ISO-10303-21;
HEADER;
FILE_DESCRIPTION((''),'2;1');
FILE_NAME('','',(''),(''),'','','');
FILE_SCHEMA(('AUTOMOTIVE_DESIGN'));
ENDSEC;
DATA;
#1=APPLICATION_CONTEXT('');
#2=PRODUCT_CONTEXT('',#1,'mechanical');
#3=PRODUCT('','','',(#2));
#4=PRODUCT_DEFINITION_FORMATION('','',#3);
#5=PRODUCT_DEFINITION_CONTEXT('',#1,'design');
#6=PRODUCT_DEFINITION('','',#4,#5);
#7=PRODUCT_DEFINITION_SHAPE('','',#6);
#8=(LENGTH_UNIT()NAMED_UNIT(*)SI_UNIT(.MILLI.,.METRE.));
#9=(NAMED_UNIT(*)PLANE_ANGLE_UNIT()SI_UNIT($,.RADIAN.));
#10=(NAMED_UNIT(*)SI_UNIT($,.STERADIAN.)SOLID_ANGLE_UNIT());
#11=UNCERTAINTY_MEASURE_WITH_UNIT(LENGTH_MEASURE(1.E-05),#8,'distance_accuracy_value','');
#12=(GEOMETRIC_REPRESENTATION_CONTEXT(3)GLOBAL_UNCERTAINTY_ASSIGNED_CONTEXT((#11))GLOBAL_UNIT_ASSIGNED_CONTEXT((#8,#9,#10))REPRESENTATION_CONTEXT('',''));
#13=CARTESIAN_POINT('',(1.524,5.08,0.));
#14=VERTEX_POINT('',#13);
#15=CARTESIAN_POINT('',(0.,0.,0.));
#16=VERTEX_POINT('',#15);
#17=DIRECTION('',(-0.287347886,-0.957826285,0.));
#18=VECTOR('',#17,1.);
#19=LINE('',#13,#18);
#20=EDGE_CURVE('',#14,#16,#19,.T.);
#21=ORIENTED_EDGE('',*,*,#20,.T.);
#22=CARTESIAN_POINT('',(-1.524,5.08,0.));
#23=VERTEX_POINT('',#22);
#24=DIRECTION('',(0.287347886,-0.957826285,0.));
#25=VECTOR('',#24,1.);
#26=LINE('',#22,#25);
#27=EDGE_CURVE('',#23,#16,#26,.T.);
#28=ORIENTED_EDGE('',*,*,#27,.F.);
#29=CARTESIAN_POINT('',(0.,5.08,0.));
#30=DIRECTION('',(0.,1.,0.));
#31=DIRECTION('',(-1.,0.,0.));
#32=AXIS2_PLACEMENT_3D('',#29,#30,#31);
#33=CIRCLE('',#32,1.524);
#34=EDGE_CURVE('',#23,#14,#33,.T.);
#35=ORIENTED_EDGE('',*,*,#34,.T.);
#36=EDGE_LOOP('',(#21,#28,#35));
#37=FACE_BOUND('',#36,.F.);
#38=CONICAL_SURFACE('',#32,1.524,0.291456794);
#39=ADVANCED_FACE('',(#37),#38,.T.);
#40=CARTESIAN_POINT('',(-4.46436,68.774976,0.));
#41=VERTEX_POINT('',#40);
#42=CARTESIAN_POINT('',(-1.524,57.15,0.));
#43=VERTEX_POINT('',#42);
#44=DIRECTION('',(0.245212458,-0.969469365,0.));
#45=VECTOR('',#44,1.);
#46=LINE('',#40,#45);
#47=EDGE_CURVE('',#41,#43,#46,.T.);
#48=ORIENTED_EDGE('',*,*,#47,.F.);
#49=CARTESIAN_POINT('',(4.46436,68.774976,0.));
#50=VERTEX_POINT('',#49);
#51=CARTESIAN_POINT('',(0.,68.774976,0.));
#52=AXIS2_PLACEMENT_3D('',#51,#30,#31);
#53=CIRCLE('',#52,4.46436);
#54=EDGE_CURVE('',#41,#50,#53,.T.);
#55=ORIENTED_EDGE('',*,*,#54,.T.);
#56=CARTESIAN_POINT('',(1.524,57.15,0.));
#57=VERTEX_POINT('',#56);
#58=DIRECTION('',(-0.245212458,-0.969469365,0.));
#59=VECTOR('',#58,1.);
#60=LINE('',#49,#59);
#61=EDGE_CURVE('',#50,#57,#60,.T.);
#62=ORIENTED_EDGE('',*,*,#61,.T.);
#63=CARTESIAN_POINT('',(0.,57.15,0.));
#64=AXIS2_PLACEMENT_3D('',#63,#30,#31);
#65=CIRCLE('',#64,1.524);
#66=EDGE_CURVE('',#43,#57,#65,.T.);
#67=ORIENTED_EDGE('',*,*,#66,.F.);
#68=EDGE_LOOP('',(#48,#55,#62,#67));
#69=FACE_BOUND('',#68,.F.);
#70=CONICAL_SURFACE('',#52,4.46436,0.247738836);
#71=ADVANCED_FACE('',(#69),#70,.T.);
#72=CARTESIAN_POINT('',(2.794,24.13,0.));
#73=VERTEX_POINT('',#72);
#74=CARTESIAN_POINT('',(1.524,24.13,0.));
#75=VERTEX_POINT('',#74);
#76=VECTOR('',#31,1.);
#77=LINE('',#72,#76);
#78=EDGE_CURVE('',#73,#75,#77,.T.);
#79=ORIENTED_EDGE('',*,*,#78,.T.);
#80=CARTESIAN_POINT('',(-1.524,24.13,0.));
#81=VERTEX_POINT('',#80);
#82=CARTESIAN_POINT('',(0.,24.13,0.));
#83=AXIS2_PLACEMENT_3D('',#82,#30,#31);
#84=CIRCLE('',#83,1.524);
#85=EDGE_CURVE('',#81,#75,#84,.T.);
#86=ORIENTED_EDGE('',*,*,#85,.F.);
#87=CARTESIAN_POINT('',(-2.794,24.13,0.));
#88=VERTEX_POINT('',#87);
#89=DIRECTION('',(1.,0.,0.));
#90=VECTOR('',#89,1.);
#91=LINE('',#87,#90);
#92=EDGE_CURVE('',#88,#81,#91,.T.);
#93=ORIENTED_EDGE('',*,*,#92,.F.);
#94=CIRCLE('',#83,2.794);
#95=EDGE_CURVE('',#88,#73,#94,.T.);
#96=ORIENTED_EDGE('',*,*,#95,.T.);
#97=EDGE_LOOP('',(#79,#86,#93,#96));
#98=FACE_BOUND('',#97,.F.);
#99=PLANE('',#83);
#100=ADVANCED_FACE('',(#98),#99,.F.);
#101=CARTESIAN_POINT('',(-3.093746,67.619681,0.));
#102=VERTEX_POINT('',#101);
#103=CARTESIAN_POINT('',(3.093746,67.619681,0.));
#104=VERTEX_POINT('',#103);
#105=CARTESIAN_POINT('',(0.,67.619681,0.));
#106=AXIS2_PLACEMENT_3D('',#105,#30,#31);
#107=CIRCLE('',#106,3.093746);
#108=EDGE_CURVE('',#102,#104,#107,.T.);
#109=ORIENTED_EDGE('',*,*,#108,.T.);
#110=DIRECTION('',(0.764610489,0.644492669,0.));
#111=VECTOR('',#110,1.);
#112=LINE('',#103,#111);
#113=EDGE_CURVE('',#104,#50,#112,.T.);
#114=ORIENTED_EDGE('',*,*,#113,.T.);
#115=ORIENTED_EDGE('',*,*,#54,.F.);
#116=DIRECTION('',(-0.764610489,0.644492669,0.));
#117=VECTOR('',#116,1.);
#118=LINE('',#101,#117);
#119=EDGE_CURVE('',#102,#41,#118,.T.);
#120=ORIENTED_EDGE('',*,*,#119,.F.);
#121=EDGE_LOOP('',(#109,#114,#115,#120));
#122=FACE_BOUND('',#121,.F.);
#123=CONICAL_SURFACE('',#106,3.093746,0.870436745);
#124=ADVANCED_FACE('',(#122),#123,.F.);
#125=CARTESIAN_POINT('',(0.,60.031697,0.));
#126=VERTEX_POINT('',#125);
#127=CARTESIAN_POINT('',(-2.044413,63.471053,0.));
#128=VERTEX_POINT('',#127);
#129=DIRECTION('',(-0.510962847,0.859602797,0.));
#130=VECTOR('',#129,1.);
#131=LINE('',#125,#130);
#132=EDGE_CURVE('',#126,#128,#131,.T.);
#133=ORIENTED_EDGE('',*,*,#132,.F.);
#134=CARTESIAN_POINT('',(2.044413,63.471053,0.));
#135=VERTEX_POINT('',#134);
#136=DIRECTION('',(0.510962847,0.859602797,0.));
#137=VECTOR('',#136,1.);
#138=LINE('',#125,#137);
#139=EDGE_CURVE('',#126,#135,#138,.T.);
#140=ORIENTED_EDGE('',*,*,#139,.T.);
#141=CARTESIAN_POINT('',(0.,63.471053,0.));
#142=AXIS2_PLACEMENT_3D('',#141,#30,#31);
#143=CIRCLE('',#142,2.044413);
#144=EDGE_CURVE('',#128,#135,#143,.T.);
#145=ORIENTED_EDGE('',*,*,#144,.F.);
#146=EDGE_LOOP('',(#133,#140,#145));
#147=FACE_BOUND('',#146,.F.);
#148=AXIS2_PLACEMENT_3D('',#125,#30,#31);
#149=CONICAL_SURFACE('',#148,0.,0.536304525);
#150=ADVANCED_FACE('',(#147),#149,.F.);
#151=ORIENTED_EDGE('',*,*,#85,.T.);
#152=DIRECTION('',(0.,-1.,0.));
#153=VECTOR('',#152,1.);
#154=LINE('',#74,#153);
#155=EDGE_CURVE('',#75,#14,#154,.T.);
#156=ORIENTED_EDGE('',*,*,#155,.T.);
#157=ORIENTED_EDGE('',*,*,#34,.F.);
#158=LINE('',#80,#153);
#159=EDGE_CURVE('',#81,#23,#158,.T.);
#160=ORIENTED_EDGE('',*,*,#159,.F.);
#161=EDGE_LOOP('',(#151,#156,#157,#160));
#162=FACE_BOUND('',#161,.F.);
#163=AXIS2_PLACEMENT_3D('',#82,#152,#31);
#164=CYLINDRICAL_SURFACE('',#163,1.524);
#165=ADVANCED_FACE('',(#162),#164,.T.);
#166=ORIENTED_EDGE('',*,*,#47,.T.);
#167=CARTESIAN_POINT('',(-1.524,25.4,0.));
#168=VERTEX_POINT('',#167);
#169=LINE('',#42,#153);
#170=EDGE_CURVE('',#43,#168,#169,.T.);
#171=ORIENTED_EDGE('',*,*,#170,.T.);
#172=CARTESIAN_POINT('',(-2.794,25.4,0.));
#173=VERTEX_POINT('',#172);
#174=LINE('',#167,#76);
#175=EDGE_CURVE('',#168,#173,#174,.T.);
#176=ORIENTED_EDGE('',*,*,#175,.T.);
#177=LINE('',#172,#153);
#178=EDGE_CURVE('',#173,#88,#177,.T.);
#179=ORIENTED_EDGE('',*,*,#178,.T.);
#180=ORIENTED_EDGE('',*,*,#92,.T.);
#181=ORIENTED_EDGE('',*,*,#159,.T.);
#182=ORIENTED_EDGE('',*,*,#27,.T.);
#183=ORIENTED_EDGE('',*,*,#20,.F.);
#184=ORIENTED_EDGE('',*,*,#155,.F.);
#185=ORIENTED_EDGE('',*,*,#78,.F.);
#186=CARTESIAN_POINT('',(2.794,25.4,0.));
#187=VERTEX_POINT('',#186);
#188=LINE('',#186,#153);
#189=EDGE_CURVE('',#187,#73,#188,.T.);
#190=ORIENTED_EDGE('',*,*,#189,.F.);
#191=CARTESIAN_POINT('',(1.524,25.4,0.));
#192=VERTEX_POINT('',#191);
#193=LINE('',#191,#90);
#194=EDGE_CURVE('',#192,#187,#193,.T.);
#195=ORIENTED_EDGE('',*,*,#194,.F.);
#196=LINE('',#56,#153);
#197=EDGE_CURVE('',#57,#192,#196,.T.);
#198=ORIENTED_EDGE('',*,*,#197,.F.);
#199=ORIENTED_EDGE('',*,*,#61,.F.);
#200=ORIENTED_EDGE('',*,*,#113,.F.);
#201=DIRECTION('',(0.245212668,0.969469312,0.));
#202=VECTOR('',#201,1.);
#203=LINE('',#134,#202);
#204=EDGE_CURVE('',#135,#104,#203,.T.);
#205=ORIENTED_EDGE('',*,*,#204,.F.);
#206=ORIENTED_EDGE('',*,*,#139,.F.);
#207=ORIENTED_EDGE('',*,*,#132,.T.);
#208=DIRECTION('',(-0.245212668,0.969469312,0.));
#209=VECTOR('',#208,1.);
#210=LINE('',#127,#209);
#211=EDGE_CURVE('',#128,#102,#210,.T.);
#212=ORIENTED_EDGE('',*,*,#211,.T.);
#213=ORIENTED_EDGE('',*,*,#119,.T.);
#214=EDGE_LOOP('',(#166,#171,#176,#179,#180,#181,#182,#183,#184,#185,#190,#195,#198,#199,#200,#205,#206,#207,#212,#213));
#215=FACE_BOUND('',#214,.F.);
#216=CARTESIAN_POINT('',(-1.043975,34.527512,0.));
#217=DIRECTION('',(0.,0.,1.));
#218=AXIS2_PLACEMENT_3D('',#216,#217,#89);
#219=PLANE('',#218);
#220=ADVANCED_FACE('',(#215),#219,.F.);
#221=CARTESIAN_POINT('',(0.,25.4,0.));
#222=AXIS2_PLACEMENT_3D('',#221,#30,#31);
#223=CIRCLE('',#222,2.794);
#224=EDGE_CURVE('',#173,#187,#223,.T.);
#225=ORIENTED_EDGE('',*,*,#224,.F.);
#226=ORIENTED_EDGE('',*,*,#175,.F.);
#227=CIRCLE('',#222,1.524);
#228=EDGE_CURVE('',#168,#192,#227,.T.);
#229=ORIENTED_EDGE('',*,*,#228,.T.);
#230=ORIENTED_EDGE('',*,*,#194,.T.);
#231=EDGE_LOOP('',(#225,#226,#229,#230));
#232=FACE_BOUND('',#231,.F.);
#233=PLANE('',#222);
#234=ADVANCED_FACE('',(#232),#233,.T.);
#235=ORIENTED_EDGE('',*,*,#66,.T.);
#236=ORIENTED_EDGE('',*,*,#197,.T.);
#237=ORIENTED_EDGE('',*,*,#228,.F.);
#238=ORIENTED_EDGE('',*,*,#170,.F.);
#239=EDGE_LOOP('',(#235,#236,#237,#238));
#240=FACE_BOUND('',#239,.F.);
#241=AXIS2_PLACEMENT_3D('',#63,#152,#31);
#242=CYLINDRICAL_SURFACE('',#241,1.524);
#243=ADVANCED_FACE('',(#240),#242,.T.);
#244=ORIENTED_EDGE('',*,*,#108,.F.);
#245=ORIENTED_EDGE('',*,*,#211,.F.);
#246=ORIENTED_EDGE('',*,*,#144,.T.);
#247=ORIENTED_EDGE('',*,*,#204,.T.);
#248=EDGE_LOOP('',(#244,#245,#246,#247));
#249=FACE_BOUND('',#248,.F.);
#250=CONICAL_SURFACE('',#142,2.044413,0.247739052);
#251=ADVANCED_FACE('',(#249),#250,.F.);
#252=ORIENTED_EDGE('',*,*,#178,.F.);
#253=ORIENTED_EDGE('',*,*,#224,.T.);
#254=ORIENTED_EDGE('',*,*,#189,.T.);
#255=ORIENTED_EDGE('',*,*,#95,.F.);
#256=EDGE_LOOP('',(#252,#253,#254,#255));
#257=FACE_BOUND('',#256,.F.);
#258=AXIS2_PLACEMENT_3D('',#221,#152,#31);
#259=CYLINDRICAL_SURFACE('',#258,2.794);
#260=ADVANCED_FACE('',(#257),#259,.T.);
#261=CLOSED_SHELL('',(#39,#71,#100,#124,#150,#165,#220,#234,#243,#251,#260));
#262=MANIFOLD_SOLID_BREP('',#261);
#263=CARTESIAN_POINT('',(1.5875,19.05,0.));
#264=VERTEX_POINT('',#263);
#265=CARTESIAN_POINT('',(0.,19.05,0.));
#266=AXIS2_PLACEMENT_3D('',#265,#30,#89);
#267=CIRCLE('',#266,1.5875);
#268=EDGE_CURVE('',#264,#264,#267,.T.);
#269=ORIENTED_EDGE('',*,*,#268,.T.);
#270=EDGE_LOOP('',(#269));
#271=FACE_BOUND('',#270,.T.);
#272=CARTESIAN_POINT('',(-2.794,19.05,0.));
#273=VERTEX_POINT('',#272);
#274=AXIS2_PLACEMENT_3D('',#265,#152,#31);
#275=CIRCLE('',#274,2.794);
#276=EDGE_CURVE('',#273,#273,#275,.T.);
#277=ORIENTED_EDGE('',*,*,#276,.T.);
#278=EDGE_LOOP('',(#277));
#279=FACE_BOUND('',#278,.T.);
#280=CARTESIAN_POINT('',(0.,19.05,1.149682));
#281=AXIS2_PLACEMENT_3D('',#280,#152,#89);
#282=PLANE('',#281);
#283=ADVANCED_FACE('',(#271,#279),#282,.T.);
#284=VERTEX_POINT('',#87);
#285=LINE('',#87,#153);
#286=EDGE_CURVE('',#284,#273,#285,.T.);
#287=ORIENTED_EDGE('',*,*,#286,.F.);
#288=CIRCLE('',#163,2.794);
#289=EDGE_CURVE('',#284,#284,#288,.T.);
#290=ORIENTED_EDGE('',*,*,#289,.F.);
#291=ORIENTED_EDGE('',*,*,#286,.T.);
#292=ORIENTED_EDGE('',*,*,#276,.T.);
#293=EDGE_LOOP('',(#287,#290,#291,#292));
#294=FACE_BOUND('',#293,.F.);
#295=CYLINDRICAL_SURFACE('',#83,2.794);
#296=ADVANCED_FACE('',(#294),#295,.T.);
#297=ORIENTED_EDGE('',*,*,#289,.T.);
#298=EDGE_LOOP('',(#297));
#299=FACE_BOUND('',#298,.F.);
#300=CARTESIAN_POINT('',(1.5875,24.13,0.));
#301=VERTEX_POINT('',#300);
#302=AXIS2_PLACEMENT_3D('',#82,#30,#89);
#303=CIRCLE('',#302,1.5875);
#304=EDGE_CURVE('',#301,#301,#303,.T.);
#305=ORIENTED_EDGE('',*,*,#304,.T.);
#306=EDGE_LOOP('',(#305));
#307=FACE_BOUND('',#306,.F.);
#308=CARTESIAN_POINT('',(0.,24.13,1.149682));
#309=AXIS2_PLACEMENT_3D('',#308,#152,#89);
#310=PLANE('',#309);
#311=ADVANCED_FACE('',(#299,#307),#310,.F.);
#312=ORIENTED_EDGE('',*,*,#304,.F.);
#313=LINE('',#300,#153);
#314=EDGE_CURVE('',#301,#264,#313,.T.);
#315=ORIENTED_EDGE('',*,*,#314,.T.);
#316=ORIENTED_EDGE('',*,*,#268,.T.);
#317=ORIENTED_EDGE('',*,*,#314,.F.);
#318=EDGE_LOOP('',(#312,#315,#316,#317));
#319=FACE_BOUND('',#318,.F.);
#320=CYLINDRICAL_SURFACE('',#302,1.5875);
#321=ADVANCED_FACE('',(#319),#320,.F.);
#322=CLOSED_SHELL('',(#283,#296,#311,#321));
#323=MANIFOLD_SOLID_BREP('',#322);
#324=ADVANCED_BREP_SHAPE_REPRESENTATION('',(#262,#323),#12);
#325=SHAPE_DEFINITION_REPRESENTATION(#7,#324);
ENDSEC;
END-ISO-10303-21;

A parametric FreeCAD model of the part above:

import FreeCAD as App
import Part
import Sketcher
from FreeCAD import Vector
Q = App.Units.Quantity

doc = App.newDocument("Part")
body = doc.addObject("PartDesign::Body", "Body")

# Sketch on XY plane
sketch1 = body.newObject("Sketcher::SketchObject", "Sketch")
sketch1.AttachmentSupport = (doc.getObject("XY_Plane"), [""])
sketch1.MapMode = "FlatFace"
sketch1.addGeometry(Part.LineSegment(Vector(-1.5, 5.1, 0), Vector(0, 0, 0)), False)
sketch1.addGeometry(Part.LineSegment(Vector(0, 0, 0), Vector(0, 60, 0)), False)
sketch1.addGeometry(Part.LineSegment(Vector(0, 60, 0), Vector(-2, 63.5, 0)), False)
sketch1.addGeometry(Part.LineSegment(Vector(-2, 63.5, 0), Vector(-3.1, 67.6, 0)), False)
sketch1.addGeometry(Part.LineSegment(Vector(-3.1, 67.6, 0), Vector(-4.5, 68.8, 0)), False)
sketch1.addGeometry(Part.LineSegment(Vector(-4.5, 68.8, 0), Vector(-1.5, 57.1, 0)), False)
sketch1.addGeometry(Part.LineSegment(Vector(-1.5, 57.1, 0), Vector(-1.5, 25.4, 0)), False)
sketch1.addGeometry(Part.LineSegment(Vector(-1.5, 25.4, 0), Vector(-2.8, 25.4, 0)), False)
sketch1.addGeometry(Part.LineSegment(Vector(-2.8, 25.4, 0), Vector(-2.8, 24.1, 0)), False)
sketch1.addGeometry(Part.LineSegment(Vector(-2.8, 24.1, 0), Vector(-1.5, 24.1, 0)), False)
sketch1.addGeometry(Part.LineSegment(Vector(-1.5, 24.1, 0), Vector(-1.5, 5.1, 0)), False)
sketch1.addConstraint(Sketcher.Constraint("Coincident", 0, 2, 1, 1))
sketch1.addConstraint(Sketcher.Constraint("Coincident", 1, 2, 2, 1))
sketch1.addConstraint(Sketcher.Constraint("Coincident", 2, 2, 3, 1))
sketch1.addConstraint(Sketcher.Constraint("Coincident", 3, 2, 4, 1))
sketch1.addConstraint(Sketcher.Constraint("Coincident", 4, 2, 5, 1))
sketch1.addConstraint(Sketcher.Constraint("Coincident", 5, 2, 6, 1))
sketch1.addConstraint(Sketcher.Constraint("Coincident", 6, 2, 7, 1))
sketch1.addConstraint(Sketcher.Constraint("Coincident", 7, 2, 8, 1))
sketch1.addConstraint(Sketcher.Constraint("Coincident", 8, 2, 9, 1))
sketch1.addConstraint(Sketcher.Constraint("Coincident", 9, 2, 10, 1))
sketch1.addConstraint(Sketcher.Constraint("Coincident", 10, 2, 0, 1))
sketch1.addConstraint(Sketcher.Constraint("Vertical", 1))
sketch1.addConstraint(Sketcher.Constraint("Vertical", 6))
sketch1.addConstraint(Sketcher.Constraint("Horizontal", 7))
sketch1.addConstraint(Sketcher.Constraint("Vertical", 8))
sketch1.addConstraint(Sketcher.Constraint("Horizontal", 9))
sketch1.addConstraint(Sketcher.Constraint("Vertical", 10))
sketch1.addConstraint(Sketcher.Constraint("Coincident", 0, 2, -1, 1))
sketch1.addConstraint(Sketcher.Constraint("Parallel", 3, 5))
sketch1.addConstraint(Sketcher.Constraint("Vertical", 6, 2, 9, 2))
sketch1.addConstraint(Sketcher.Constraint("Equal", 9, 8))
sketch1.addConstraint(Sketcher.Constraint("DistanceY", -1, 1, 6, 2, Q("1 in")))
sketch1.addConstraint(Sketcher.Constraint("DistanceX", 7, 2, 7, 1, Q("0.05 in")))
sketch1.addConstraint(Sketcher.Constraint("DistanceY", 6, 2, 6, 1, Q("1.25 in")))
sketch1.addConstraint(Sketcher.Constraint("DistanceY", 10, 2, 10, 1, Q("0.75 in")))
sketch1.addConstraint(Sketcher.Constraint("DistanceX", 5, 2, -1, 1, Q("0.06 in")))
sketch1.addConstraint(Sketcher.Constraint("Distance", 2, 4.001099))
sketch1.addConstraint(Sketcher.Constraint("Distance", 5, 11.991071))
sketch1.addConstraint(Sketcher.Constraint("DistanceY", 1, 1, 1, 2, 60.031697))
sketch1.addConstraint(Sketcher.Constraint("DistanceY", -1, 1, 3, 2, 67.619681))
sketch1.addConstraint(Sketcher.Constraint("DistanceX", 4, 2, -1, 1, 4.46436))
sketch1.addConstraint(Sketcher.Constraint("DistanceY", 2, 2, 3, 2, 4.148628))
revolution = body.newObject("PartDesign::Revolution", "Revolution")
revolution.Profile = sketch1
revolution.ReferenceAxis = (sketch1, ["V_Axis"])
revolution.Angle = 180
body2 = doc.addObject("PartDesign::Body", "Body001")

# Sketch on XZ plane
sketch2 = body2.newObject("Sketcher::SketchObject", "Sketch001")
sketch2.AttachmentSupport = (doc.getObject("XZ_Plane001"), [""])
sketch2.MapMode = "FlatFace"
sketch2.AttachmentOffset = App.Placement(Vector(0, 0, -0.95 * 25.4), App.Rotation())
sketch2.addGeometry(Part.Circle(Vector(0, 0, 0), Vector(0, 0, 1), 2.8), False)
sketch2.addGeometry(Part.Circle(Vector(0, 0, 0), Vector(0, 0, 1), 1.6), False)
sketch2.addConstraint(Sketcher.Constraint("Coincident", 0, 3, -1, 1))
sketch2.addConstraint(Sketcher.Constraint("Coincident", 1, 3, -1, 1))
sketch2.addConstraint(Sketcher.Constraint("Diameter", 0, Q("0.22 in")))
sketch2.addConstraint(Sketcher.Constraint("Diameter", 1, Q("0.125 in")))
pad1 = body2.newObject("PartDesign::Pad", "Pad")
pad1.Profile = sketch2
pad1.Length = Q("0.2 in")

doc.recompute()
